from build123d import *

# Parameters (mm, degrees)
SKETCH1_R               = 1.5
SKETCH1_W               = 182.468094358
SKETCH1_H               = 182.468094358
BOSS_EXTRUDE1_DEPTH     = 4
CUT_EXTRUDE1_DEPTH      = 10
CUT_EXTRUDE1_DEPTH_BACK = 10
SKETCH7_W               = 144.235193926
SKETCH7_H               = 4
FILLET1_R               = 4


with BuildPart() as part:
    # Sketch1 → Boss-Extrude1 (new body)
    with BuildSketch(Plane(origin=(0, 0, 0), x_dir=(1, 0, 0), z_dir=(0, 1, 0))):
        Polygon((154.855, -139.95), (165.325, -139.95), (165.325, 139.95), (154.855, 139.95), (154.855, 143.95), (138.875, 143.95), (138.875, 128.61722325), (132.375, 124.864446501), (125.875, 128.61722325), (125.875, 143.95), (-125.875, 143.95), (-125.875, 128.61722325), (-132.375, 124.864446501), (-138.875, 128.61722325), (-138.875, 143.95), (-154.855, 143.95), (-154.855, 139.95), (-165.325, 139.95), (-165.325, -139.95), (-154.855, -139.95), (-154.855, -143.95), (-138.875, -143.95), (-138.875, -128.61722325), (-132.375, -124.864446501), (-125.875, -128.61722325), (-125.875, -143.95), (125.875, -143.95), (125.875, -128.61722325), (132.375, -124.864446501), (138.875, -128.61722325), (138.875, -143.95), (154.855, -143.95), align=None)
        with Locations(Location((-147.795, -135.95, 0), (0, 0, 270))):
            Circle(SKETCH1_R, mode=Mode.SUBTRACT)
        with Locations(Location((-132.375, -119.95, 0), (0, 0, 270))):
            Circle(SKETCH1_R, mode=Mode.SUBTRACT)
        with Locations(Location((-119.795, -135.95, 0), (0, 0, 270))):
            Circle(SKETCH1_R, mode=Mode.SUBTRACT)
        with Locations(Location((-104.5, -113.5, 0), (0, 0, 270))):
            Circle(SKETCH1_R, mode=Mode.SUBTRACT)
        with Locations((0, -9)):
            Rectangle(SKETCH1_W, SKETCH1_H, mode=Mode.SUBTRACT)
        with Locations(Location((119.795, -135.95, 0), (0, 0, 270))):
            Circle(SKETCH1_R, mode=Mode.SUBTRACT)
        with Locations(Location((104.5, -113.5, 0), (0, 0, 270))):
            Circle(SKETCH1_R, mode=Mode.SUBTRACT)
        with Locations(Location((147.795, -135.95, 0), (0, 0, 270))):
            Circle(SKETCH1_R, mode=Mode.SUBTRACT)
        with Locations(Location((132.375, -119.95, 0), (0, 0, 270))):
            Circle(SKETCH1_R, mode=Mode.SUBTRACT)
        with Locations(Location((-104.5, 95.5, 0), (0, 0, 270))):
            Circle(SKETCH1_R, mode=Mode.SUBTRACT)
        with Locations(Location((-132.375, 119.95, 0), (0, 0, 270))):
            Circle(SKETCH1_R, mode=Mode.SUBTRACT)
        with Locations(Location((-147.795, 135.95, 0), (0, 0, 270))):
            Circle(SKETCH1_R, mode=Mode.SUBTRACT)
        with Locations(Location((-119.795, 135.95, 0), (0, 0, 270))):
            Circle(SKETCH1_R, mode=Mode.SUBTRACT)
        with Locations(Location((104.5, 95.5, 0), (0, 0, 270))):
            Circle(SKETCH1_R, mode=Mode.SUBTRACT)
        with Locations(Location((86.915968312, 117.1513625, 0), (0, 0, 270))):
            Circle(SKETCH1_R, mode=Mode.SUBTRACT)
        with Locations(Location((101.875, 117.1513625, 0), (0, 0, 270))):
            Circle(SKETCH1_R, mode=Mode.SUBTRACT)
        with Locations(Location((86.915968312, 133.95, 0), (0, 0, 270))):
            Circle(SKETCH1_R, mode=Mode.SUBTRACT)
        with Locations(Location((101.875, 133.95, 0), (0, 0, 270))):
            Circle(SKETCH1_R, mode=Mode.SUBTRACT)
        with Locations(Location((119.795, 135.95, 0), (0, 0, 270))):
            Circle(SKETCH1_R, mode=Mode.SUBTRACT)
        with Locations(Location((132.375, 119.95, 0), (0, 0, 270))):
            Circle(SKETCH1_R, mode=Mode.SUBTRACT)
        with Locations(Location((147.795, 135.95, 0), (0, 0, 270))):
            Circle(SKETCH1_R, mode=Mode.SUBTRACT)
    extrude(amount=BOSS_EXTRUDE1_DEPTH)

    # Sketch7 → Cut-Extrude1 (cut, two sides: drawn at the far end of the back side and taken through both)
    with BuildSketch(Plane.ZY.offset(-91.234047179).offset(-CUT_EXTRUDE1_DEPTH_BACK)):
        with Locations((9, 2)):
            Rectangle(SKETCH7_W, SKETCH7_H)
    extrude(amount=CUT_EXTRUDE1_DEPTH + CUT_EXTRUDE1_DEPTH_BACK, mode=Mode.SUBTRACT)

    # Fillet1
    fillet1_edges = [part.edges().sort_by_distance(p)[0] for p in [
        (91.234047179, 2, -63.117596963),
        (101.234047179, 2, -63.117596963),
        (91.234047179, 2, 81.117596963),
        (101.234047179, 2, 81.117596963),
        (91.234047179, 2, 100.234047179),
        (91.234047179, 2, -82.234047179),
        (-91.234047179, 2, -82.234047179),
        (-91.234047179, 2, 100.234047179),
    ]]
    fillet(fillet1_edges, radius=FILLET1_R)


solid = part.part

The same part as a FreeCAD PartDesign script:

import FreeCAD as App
import Part
import Sketcher
from FreeCAD import Vector
Q = App.Units.Quantity


def edges_at(feature, points):
    """Names of the edges that pass closest to the given points."""
    edges = feature.Shape.Edges
    near = lambda p: min(range(len(edges)), key=lambda i: edges[i].distToShape(Part.Vertex(*p))[0])
    return sorted({f"Edge{near(p) + 1}" for p in points})


def add_polygon(sketch, points):
    """Adds a closed chain of lines whose ends are joined by coincident constraints."""
    first, n = sketch.GeometryCount, len(points)
    for a, b in zip(points, points[1:] + points[:1]):
        sketch.addGeometry(Part.LineSegment(App.Vector(*a, 0), App.Vector(*b, 0)), False)
    for i in range(n):
        sketch.addConstraint(Sketcher.Constraint("Coincident", first + i, 2, first + (i + 1) % n, 1))

doc = App.newDocument("Part")
body = doc.addObject("PartDesign::Body", "Body")

sketch1 = doc.addObject("Sketcher::SketchObject", "Sketch")
body.addObject(sketch1)
sketch1.AttachmentSupport = (doc.XZ_Plane, [""])
sketch1.MapMode = "FlatFace"
add_polygon(sketch1, [(154.9, 139.9), (165.3, 139.9), (165.3, -139.9), (154.9, -139.9), (154.9, -143.9), (138.9, -143.9), (138.9, -128.6), (132.4, -124.9), (125.9, -128.6), (125.9, -143.9), (-125.9, -143.9), (-125.9, -128.6), (-132.4, -124.9), (-138.9, -128.6), (-138.9, -143.9), (-154.9, -143.9), (-154.9, -139.9), (-165.3, -139.9), (-165.3, 139.9), (-154.9, 139.9), (-154.9, 143.9), (-138.9, 143.9), (-138.9, 128.6), (-132.4, 124.9), (-125.9, 128.6), (-125.9, 143.9), (125.9, 143.9), (125.9, 128.6), (132.4, 124.9), (138.9, 128.6), (138.9, 143.9), (154.9, 143.9)])
sketch1.addGeometry(Part.Circle(Vector(-147.8, 135.9, 0), Vector(0, 0, 1), 1.5), False)
sketch1.addGeometry(Part.Circle(Vector(-119.8, 135.9, 0), Vector(0, 0, 1), 1.5), False)
sketch1.addGeometry(Part.Circle(Vector(-132.4, 120, 0), Vector(0, 0, 1), 1.5), False)
sketch1.addGeometry(Part.Circle(Vector(-104.5, 113.5, 0), Vector(0, 0, 1), 1.5), False)
sketch1.addGeometry(Part.Circle(Vector(104.5, 113.5, 0), Vector(0, 0, 1), 1.5), False)
sketch1.addGeometry(Part.Circle(Vector(119.8, 135.9, 0), Vector(0, 0, 1), 1.5), False)
sketch1.addGeometry(Part.Circle(Vector(147.8, 135.9, 0), Vector(0, 0, 1), 1.5), False)
sketch1.addGeometry(Part.Circle(Vector(132.4, 120, 0), Vector(0, 0, 1), 1.5), False)
add_polygon(sketch1, [(91.2, 100.2), (-91.2, 100.2), (-91.2, -82.2), (91.2, -82.2)])
sketch1.addGeometry(Part.Circle(Vector(-104.5, -95.5, 0), Vector(0, 0, 1), 1.5), False)
sketch1.addGeometry(Part.Circle(Vector(-132.4, -120, 0), Vector(0, 0, 1), 1.5), False)
sketch1.addGeometry(Part.Circle(Vector(-147.8, -135.9, 0), Vector(0, 0, 1), 1.5), False)
sketch1.addGeometry(Part.Circle(Vector(-119.8, -135.9, 0), Vector(0, 0, 1), 1.5), False)
sketch1.addGeometry(Part.Circle(Vector(104.5, -95.5, 0), Vector(0, 0, 1), 1.5), False)
sketch1.addGeometry(Part.Circle(Vector(86.9, -117.2, 0), Vector(0, 0, 1), 1.5), False)
sketch1.addGeometry(Part.Circle(Vector(101.9, -117.2, 0), Vector(0, 0, 1), 1.5), False)
sketch1.addGeometry(Part.Circle(Vector(86.9, -133.9, 0), Vector(0, 0, 1), 1.5), False)
sketch1.addGeometry(Part.Circle(Vector(101.9, -133.9, 0), Vector(0, 0, 1), 1.5), False)
sketch1.addGeometry(Part.Circle(Vector(132.4, -120, 0), Vector(0, 0, 1), 1.5), False)
sketch1.addGeometry(Part.Circle(Vector(119.8, -135.9, 0), Vector(0, 0, 1), 1.5), False)
sketch1.addGeometry(Part.Circle(Vector(147.8, -135.9, 0), Vector(0, 0, 1), 1.5), False)
sketch1.addConstraint([
    Sketcher.Constraint("Horizontal", 0),
    Sketcher.Constraint("Vertical", 1),
    Sketcher.Constraint("Horizontal", 2),
    Sketcher.Constraint("Vertical", 3),
    Sketcher.Constraint("Horizontal", 4),
    Sketcher.Constraint("Vertical", 5),
    Sketcher.Constraint("Vertical", 8),
    Sketcher.Constraint("Horizontal", 9),
    Sketcher.Constraint("Vertical", 10),
    Sketcher.Constraint("Vertical", 13),
    Sketcher.Constraint("Horizontal", 14),
    Sketcher.Constraint("Vertical", 15),
    Sketcher.Constraint("Horizontal", 16),
    Sketcher.Constraint("Vertical", 17),
    Sketcher.Constraint("Horizontal", 18),
    Sketcher.Constraint("Vertical", 19),
    Sketcher.Constraint("Horizontal", 20),
    Sketcher.Constraint("Vertical", 21),
    Sketcher.Constraint("Vertical", 24),
    Sketcher.Constraint("Horizontal", 25),
    Sketcher.Constraint("Vertical", 26),
    Sketcher.Constraint("Vertical", 29),
    Sketcher.Constraint("Horizontal", 30),
    Sketcher.Constraint("Vertical", 31),
    Sketcher.Constraint("Horizontal", 40),
    Sketcher.Constraint("Vertical", 41),
    Sketcher.Constraint("Horizontal", 42),
    Sketcher.Constraint("Vertical", 43),
    Sketcher.Constraint("Equal", 32, 33),
    Sketcher.Constraint("Equal", 33, 34),
    Sketcher.Constraint("Equal", 34, 35),
    Sketcher.Constraint("Equal", 35, 36),
    Sketcher.Constraint("Equal", 36, 37),
    Sketcher.Constraint("Equal", 37, 38),
    Sketcher.Constraint("Equal", 38, 39),
    Sketcher.Constraint("Equal", 39, 44),
    Sketcher.Constraint("Equal", 44, 45),
    Sketcher.Constraint("Equal", 45, 46),
    Sketcher.Constraint("Equal", 46, 47),
    Sketcher.Constraint("Equal", 47, 48),
    Sketcher.Constraint("Equal", 48, 49),
    Sketcher.Constraint("Equal", 49, 50),
    Sketcher.Constraint("Equal", 50, 51),
    Sketcher.Constraint("Equal", 51, 52),
    Sketcher.Constraint("Equal", 52, 53),
    Sketcher.Constraint("Equal", 53, 54),
    Sketcher.Constraint("Equal", 54, 55),
    Sketcher.Constraint("Symmetric", 39, 3, 45, 3, -1, 1),
    Sketcher.Constraint("Symmetric", 38, 3, 46, 3, -1, 1),
    Sketcher.Constraint("Symmetric", 37, 3, 47, 3, -1, 1),
    Sketcher.Constraint("Symmetric", 34, 3, 53, 3, -1, 1),
    Sketcher.Constraint("Symmetric", 33, 3, 54, 3, -1, 1),
    Sketcher.Constraint("Symmetric", 32, 3, 55, 3, -1, 1),
    Sketcher.Constraint("Symmetric", 0, 2, 16, 2, -1, 1),
    Sketcher.Constraint("Symmetric", 2, 2, 18, 2, -1, 1),
    Sketcher.Constraint("Symmetric", 4, 2, 20, 2, -1, 1),
    Sketcher.Constraint("Symmetric", 6, 2, 22, 2, -1, 1),
    Sketcher.Constraint("Symmetric", 7, 2, 23, 2, -1, 1),
    Sketcher.Constraint("Symmetric", 9, 2, 25, 2, -1, 1),
    Sketcher.Constraint("Symmetric", 11, 2, 27, 2, -1, 1),
    Sketcher.Constraint("Symmetric", 12, 2, 28, 2, -1, 1),
    Sketcher.Constraint("Symmetric", 14, 2, 30, 2, -1, 1),
    Sketcher.Constraint("Symmetric", 35, 3, 36, 3, -2),
    Sketcher.Constraint("Symmetric", 33, 3, 37, 3, -2),
    Sketcher.Constraint("Symmetric", 32, 3, 38, 3, -2),
    Sketcher.Constraint("Symmetric", 34, 3, 39, 3, -2),
    Sketcher.Constraint("Symmetric", 44, 3, 48, 3, -2),
    Sketcher.Constraint("Symmetric", 7, 2, 10, 2, -2),
    Sketcher.Constraint("Symmetric", 6, 2, 11, 2, -2),
    Sketcher.Constraint("Symmetric", 5, 2, 12, 2, -2),
    Sketcher.Constraint("Symmetric", 3, 2, 14, 2, -2),
    Sketcher.Constraint("Parallel", 6, 11),
    Sketcher.Constraint("Parallel", 11, 22),
    Sketcher.Constraint("Parallel", 22, 27),
    Sketcher.Constraint("Horizontal", 32, 3, 33, 3),
    Sketcher.Constraint("Horizontal", 49, 3, 50, 3),
    Sketcher.Constraint("Horizontal", 51, 3, 52, 3),
    Sketcher.Constraint("Horizontal", 5, 2, 7, 2),
    Sketcher.Constraint("Horizontal", 4, 2, 8, 2),
    Sketcher.Constraint("Horizontal", 2, 2, 15, 2),
    Sketcher.Constraint("Vertical", 35, 3, 44, 3),
    Sketcher.Constraint("Vertical", 49, 3, 51, 3),
    Sketcher.Constraint("Vertical", 50, 3, 52, 3),
    Sketcher.Constraint("Vertical", 53, 3, 6, 2),
    Sketcher.Constraint("Equal", 42, 41),
    Sketcher.Constraint("Diameter", 32, 3.0),
    Sketcher.Constraint("DistanceY", 3, 2, 3, 1, 4.0),
    Sketcher.Constraint("Angle", 6, Q("150 deg")),
    Sketcher.Constraint("DistanceY", 1, 2, 1, 1, 279.9),
    Sketcher.Constraint("DistanceX", 32, 3, 33, 3, 28.0),
    Sketcher.Constraint("DistanceY", 34, 3, 33, 3, 16.0),
    Sketcher.Constraint("DistanceX", 35, 3, 36, 3, 209.0),
    Sketcher.Constraint("DistanceY", 44, 3, 35, 3, 209.0),
    Sketcher.Constraint("DistanceY", 47, 3, 51, 3, 2.0),
    Sketcher.Constraint("DistanceY", 38, 3, 0, 2, 4.0),
    Sketcher.Constraint("DistanceX", 7, 2, 5, 2, 13.0),
    Sketcher.Constraint("DistanceX", 0, 1, 0, 2, 10.47),
    Sketcher.Constraint("DistanceX", 4, 2, 4, 1, 15.98),
    Sketcher.Constraint("DistanceX", 9, 2, 9, 1, 251.75),
    Sketcher.Constraint("DistanceY", -1, 1, 35, 3, 113.5),
    Sketcher.Constraint("DistanceX", 50, 3, 53, 3, 30.5),
    Sketcher.Constraint("DistanceX", 34, 3, 33, 3, 12.58),
    Sketcher.Constraint("DistanceY", 40, 2, 22, 2, 24.630399),
    Sketcher.Constraint("DistanceY", 11, 2, 41, 2, 42.630399),
    Sketcher.Constraint("DistanceX", 40, 2, 40, 1, 182.468094),
    Sketcher.Constraint("DistanceX", -1, 1, 49, 3, 86.915968),
    Sketcher.Constraint("DistanceX", 49, 3, 42, 2, 4.318079),
    Sketcher.Constraint("DistanceY", 49, 3, -1, 1, 117.151363),
])
pad1 = doc.addObject("PartDesign::Pad", "Pad")
body.addObject(pad1)
pad1.Profile = sketch1
pad1.Length = 4
pad1.Reversed = True

sketch2 = doc.addObject("Sketcher::SketchObject", "Sketch001")
body.addObject(sketch2)
sketch2.AttachmentSupport = (doc.YZ_Plane, [""])
sketch2.MapMode = "FlatFace"
sketch2.AttachmentOffset = App.Placement(Vector(0, 0, 91.234047), App.Rotation())
add_polygon(sketch2, [(4, -63.1), (0, -63.1), (0, 81.1), (4, 81.1)])
sketch2.addConstraint([
    Sketcher.Constraint("Horizontal", 0),
    Sketcher.Constraint("Vertical", 1),
    Sketcher.Constraint("Horizontal", 2),
    Sketcher.Constraint("Vertical", 3),
    Sketcher.Constraint("PointOnObject", 0, 2, -2),
    Sketcher.Constraint("DistanceX", 0, 2, 0, 1, 4.0),
    Sketcher.Constraint("DistanceY", 1, 1, 1, 2, 144.235194),
    Sketcher.Constraint("DistanceY", 0, 2, -1, 1, 63.117597),
])
pocket1 = doc.addObject("PartDesign::Pocket", "Pocket")
body.addObject(pocket1)
pocket1.Profile = sketch2
pocket1.Type = "TwoLengths"
pocket1.Length = 10
pocket1.Length2 = 10
doc.recompute()

fillet = doc.addObject("PartDesign::Fillet", "Fillet")
body.addObject(fillet)
fillet.Base = (pocket1, edges_at(pocket1, [
    (91.234, 2, -63.118),
    (101.234, 2, -63.118),
    (91.234, 2, 81.118),
    (101.234, 2, 81.118),
    (91.234, 2, 100.234),
    (91.234, 2, -82.234),
    (-91.234, 2, -82.234),
    (-91.234, 2, 100.234),
]))
fillet.Radius = 4

doc.recompute()
